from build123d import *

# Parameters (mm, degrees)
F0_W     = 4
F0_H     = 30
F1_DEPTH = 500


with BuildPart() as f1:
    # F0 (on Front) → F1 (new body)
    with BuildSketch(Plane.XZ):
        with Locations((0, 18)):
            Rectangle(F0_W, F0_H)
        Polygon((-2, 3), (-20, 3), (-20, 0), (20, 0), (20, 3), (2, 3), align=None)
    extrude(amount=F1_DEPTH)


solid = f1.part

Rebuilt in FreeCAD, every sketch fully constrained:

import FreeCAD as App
import Part
import Sketcher
from FreeCAD import Vector
Q = App.Units.Quantity

doc = App.newDocument("Part")
body = doc.addObject("PartDesign::Body", "Body")

sketch1 = body.newObject("Sketcher::SketchObject", "Sketch")
sketch1.AttachmentSupport = (doc.getObject("XZ_Plane"), [""])
sketch1.MapMode = "FlatFace"
sketch1.addGeometry([
    Part.LineSegment(Vector(-2, 33, 0), Vector(-2, 3, 0)),
    Part.LineSegment(Vector(-2, 3, 0), Vector(-20, 3, 0)),
    Part.LineSegment(Vector(-20, 3, 0), Vector(-20, 0, 0)),
    Part.LineSegment(Vector(-20, 0, 0), Vector(20, 0, 0)),
    Part.LineSegment(Vector(20, 0, 0), Vector(20, 3, 0)),
    Part.LineSegment(Vector(20, 3, 0), Vector(2, 3, 0)),
    Part.LineSegment(Vector(2, 3, 0), Vector(2, 33, 0)),
    Part.LineSegment(Vector(2, 33, 0), Vector(-2, 33, 0)),
], False)
sketch1.addConstraint([
    Sketcher.Constraint("Coincident", 0, 2, 1, 1),
    Sketcher.Constraint("Coincident", 1, 2, 2, 1),
    Sketcher.Constraint("Coincident", 2, 2, 3, 1),
    Sketcher.Constraint("Coincident", 3, 2, 4, 1),
    Sketcher.Constraint("Coincident", 4, 2, 5, 1),
    Sketcher.Constraint("Coincident", 5, 2, 6, 1),
    Sketcher.Constraint("Coincident", 6, 2, 7, 1),
    Sketcher.Constraint("Coincident", 7, 2, 0, 1),
    Sketcher.Constraint("Vertical", 0),
    Sketcher.Constraint("Horizontal", 1),
    Sketcher.Constraint("Vertical", 2),
    Sketcher.Constraint("Horizontal", 3),
    Sketcher.Constraint("Vertical", 4),
    Sketcher.Constraint("Horizontal", 5),
    Sketcher.Constraint("Vertical", 6),
    Sketcher.Constraint("Horizontal", 7),
    Sketcher.Constraint("Symmetric", 2, 2, 3, 2, -1, 1),
    Sketcher.Constraint("Symmetric", 0, 2, 5, 2, -2),
    Sketcher.Constraint("DistanceX", 1, 2, 1, 1, Q("18 mm")),
    Sketcher.Constraint("DistanceX", 3, 1, 3, 2, Q("40 mm")),
    Sketcher.Constraint("DistanceY", 0, 2, 0, 1, Q("30 mm")),
    Sketcher.Constraint("DistanceY", 2, 2, 2, 1, Q("3 mm")),
])
pad1 = body.newObject("PartDesign::Pad", "Pad")
pad1.Profile = sketch1
pad1.Length = 500

doc.recompute()
